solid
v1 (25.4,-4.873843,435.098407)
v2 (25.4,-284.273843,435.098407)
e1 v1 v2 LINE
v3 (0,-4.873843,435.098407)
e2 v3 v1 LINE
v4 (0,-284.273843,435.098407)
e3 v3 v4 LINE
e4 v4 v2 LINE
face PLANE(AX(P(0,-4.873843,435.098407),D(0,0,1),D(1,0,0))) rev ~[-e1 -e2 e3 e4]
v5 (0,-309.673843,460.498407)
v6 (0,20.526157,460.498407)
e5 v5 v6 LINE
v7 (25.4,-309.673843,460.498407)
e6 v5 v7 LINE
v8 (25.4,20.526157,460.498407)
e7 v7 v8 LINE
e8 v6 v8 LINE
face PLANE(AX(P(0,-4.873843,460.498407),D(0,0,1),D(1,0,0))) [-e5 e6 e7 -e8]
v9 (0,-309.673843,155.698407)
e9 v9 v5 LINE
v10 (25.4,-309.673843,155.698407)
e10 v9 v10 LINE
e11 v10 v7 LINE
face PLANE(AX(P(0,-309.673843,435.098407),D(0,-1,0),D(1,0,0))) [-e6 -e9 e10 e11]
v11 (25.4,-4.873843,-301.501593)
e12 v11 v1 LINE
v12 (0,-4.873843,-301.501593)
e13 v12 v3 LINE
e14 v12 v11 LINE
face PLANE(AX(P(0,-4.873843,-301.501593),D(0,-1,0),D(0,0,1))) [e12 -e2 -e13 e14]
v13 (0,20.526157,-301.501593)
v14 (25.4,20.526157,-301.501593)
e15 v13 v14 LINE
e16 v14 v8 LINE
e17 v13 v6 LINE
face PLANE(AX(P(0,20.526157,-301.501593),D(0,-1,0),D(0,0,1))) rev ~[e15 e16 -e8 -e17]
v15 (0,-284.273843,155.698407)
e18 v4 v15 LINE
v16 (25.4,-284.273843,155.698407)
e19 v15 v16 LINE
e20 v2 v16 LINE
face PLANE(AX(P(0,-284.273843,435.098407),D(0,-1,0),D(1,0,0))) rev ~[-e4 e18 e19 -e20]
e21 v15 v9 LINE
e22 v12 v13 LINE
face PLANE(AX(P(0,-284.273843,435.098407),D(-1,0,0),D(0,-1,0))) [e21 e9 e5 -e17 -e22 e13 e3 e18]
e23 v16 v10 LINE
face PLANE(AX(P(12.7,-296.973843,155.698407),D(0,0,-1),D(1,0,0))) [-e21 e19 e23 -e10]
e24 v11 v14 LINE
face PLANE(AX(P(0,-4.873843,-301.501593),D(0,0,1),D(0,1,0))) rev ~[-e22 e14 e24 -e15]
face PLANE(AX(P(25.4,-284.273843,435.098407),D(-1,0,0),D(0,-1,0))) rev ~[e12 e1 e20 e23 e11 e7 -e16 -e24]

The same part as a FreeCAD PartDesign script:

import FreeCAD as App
import Part
import Sketcher

V = App.Vector
Q = App.Units.Quantity

doc = App.newDocument("Part")
body = doc.addObject("PartDesign::Body", "Body")

sketch1 = doc.addObject("Sketcher::SketchObject", "Sketch")
body.addObject(sketch1)
sketch1.AttachmentSupport = (doc.YZ_Plane, [""])
sketch1.MapMode = "FlatFace"
sketch1.addGeometry([
    Part.LineSegment(V(-4.873843, 460.498407, 0), V(-4.873843, -301.501593, 0)),
    Part.LineSegment(V(-4.873843, -301.501593, 0), V(20.526157, -301.501593, 0)),
    Part.LineSegment(V(20.526157, -301.501593, 0), V(20.526157, 460.498407, 0)),
    Part.LineSegment(V(20.526157, 460.498407, 0), V(-4.873843, 460.498407, 0)),
], False)
sketch1.addConstraint([
    Sketcher.Constraint("Coincident", 0, 2, 1, 1),
    Sketcher.Constraint("Coincident", 1, 2, 2, 1),
    Sketcher.Constraint("Coincident", 2, 2, 3, 1),
    Sketcher.Constraint("Coincident", 3, 2, 0, 1),
    Sketcher.Constraint("Vertical", 0),
    Sketcher.Constraint("Horizontal", 1),
    Sketcher.Constraint("Vertical", 2),
    Sketcher.Constraint("Horizontal", 3),
    Sketcher.Constraint("DistanceX", 1, 1, 1, 2, Q("1 in")),
    Sketcher.Constraint("DistanceY", 0, 2, 0, 1, Q("30 in")),
    Sketcher.Constraint("DistanceX", 0, 2, -1, 1, Q("4.873843 mm")),
    Sketcher.Constraint("DistanceY", 0, 2, -1, 1, Q("301.501593 mm")),
])
pad1 = doc.addObject("PartDesign::Pad", "Pad")
body.addObject(pad1)
pad1.Profile = sketch1
pad1.Length = Q("1 in")

sketch2 = doc.addObject("Sketcher::SketchObject", "Sketch001")
body.addObject(sketch2)
sketch2.AttachmentSupport = (doc.XZ_Plane, [""])
sketch2.MapMode = "FlatFace"
sketch2.AttachmentOffset = App.Placement(V(0, 0, 4.873843), App.Rotation())
sketch2.addGeometry([
    Part.LineSegment(V(0, 460.498407, 0), V(0, 435.098407, 0)),
    Part.LineSegment(V(0, 435.098407, 0), V(25.4, 435.098407, 0)),
    Part.LineSegment(V(25.4, 435.098407, 0), V(25.4, 460.498407, 0)),
    Part.LineSegment(V(25.4, 460.498407, 0), V(0, 460.498407, 0)),
], False)
sketch2.addConstraint([
    Sketcher.Constraint("Coincident", 0, 2, 1, 1),
    Sketcher.Constraint("Coincident", 1, 2, 2, 1),
    Sketcher.Constraint("Coincident", 2, 2, 3, 1),
    Sketcher.Constraint("Coincident", 3, 2, 0, 1),
    Sketcher.Constraint("Vertical", 0),
    Sketcher.Constraint("Horizontal", 1),
    Sketcher.Constraint("Vertical", 2),
    Sketcher.Constraint("Horizontal", 3),
    Sketcher.Constraint("PointOnObject", 0, 2, -2),
    Sketcher.Constraint("Equal", 3, 0),
    Sketcher.Constraint("DistanceX", 1, 1, 1, 2, Q("1 in")),
    Sketcher.Constraint("DistanceY", -1, 1, 0, 2, Q("435.098407 mm")),
])
pad2 = doc.addObject("PartDesign::Pad", "Pad001")
body.addObject(pad2)
pad2.Profile = sketch2
pad2.Length = Q("12 in")

sketch3 = doc.addObject("Sketcher::SketchObject", "Sketch002")
body.addObject(sketch3)
sketch3.AttachmentSupport = (doc.XY_Plane, [""])
sketch3.MapMode = "FlatFace"
sketch3.AttachmentOffset = App.Placement(V(0, 0, 435.098407), App.Rotation())
sketch3.addGeometry([
    Part.LineSegment(V(0, -309.673843, 0), V(0, -284.273843, 0)),
    Part.LineSegment(V(0, -284.273843, 0), V(25.4, -284.273843, 0)),
    Part.LineSegment(V(25.4, -284.273843, 0), V(25.4, -309.673843, 0)),
    Part.LineSegment(V(25.4, -309.673843, 0), V(0, -309.673843, 0)),
], False)
sketch3.addConstraint([
    Sketcher.Constraint("Coincident", 0, 2, 1, 1),
    Sketcher.Constraint("Coincident", 1, 2, 2, 1),
    Sketcher.Constraint("Coincident", 2, 2, 3, 1),
    Sketcher.Constraint("Coincident", 3, 2, 0, 1),
    Sketcher.Constraint("Vertical", 0),
    Sketcher.Constraint("Horizontal", 1),
    Sketcher.Constraint("Vertical", 2),
    Sketcher.Constraint("Horizontal", 3),
    Sketcher.Constraint("PointOnObject", 0, 2, -2),
    Sketcher.Constraint("Equal", 3, 0),
    Sketcher.Constraint("DistanceX", 1, 1, 1, 2, Q("1 in")),
    Sketcher.Constraint("DistanceY", 0, 2, -1, 1, Q("284.273843 mm")),
])
pad3 = doc.addObject("PartDesign::Pad", "Pad002")
body.addObject(pad3)
pad3.Profile = sketch3
pad3.Length = Q("11 in")
pad3.Reversed = True

doc.recompute()
